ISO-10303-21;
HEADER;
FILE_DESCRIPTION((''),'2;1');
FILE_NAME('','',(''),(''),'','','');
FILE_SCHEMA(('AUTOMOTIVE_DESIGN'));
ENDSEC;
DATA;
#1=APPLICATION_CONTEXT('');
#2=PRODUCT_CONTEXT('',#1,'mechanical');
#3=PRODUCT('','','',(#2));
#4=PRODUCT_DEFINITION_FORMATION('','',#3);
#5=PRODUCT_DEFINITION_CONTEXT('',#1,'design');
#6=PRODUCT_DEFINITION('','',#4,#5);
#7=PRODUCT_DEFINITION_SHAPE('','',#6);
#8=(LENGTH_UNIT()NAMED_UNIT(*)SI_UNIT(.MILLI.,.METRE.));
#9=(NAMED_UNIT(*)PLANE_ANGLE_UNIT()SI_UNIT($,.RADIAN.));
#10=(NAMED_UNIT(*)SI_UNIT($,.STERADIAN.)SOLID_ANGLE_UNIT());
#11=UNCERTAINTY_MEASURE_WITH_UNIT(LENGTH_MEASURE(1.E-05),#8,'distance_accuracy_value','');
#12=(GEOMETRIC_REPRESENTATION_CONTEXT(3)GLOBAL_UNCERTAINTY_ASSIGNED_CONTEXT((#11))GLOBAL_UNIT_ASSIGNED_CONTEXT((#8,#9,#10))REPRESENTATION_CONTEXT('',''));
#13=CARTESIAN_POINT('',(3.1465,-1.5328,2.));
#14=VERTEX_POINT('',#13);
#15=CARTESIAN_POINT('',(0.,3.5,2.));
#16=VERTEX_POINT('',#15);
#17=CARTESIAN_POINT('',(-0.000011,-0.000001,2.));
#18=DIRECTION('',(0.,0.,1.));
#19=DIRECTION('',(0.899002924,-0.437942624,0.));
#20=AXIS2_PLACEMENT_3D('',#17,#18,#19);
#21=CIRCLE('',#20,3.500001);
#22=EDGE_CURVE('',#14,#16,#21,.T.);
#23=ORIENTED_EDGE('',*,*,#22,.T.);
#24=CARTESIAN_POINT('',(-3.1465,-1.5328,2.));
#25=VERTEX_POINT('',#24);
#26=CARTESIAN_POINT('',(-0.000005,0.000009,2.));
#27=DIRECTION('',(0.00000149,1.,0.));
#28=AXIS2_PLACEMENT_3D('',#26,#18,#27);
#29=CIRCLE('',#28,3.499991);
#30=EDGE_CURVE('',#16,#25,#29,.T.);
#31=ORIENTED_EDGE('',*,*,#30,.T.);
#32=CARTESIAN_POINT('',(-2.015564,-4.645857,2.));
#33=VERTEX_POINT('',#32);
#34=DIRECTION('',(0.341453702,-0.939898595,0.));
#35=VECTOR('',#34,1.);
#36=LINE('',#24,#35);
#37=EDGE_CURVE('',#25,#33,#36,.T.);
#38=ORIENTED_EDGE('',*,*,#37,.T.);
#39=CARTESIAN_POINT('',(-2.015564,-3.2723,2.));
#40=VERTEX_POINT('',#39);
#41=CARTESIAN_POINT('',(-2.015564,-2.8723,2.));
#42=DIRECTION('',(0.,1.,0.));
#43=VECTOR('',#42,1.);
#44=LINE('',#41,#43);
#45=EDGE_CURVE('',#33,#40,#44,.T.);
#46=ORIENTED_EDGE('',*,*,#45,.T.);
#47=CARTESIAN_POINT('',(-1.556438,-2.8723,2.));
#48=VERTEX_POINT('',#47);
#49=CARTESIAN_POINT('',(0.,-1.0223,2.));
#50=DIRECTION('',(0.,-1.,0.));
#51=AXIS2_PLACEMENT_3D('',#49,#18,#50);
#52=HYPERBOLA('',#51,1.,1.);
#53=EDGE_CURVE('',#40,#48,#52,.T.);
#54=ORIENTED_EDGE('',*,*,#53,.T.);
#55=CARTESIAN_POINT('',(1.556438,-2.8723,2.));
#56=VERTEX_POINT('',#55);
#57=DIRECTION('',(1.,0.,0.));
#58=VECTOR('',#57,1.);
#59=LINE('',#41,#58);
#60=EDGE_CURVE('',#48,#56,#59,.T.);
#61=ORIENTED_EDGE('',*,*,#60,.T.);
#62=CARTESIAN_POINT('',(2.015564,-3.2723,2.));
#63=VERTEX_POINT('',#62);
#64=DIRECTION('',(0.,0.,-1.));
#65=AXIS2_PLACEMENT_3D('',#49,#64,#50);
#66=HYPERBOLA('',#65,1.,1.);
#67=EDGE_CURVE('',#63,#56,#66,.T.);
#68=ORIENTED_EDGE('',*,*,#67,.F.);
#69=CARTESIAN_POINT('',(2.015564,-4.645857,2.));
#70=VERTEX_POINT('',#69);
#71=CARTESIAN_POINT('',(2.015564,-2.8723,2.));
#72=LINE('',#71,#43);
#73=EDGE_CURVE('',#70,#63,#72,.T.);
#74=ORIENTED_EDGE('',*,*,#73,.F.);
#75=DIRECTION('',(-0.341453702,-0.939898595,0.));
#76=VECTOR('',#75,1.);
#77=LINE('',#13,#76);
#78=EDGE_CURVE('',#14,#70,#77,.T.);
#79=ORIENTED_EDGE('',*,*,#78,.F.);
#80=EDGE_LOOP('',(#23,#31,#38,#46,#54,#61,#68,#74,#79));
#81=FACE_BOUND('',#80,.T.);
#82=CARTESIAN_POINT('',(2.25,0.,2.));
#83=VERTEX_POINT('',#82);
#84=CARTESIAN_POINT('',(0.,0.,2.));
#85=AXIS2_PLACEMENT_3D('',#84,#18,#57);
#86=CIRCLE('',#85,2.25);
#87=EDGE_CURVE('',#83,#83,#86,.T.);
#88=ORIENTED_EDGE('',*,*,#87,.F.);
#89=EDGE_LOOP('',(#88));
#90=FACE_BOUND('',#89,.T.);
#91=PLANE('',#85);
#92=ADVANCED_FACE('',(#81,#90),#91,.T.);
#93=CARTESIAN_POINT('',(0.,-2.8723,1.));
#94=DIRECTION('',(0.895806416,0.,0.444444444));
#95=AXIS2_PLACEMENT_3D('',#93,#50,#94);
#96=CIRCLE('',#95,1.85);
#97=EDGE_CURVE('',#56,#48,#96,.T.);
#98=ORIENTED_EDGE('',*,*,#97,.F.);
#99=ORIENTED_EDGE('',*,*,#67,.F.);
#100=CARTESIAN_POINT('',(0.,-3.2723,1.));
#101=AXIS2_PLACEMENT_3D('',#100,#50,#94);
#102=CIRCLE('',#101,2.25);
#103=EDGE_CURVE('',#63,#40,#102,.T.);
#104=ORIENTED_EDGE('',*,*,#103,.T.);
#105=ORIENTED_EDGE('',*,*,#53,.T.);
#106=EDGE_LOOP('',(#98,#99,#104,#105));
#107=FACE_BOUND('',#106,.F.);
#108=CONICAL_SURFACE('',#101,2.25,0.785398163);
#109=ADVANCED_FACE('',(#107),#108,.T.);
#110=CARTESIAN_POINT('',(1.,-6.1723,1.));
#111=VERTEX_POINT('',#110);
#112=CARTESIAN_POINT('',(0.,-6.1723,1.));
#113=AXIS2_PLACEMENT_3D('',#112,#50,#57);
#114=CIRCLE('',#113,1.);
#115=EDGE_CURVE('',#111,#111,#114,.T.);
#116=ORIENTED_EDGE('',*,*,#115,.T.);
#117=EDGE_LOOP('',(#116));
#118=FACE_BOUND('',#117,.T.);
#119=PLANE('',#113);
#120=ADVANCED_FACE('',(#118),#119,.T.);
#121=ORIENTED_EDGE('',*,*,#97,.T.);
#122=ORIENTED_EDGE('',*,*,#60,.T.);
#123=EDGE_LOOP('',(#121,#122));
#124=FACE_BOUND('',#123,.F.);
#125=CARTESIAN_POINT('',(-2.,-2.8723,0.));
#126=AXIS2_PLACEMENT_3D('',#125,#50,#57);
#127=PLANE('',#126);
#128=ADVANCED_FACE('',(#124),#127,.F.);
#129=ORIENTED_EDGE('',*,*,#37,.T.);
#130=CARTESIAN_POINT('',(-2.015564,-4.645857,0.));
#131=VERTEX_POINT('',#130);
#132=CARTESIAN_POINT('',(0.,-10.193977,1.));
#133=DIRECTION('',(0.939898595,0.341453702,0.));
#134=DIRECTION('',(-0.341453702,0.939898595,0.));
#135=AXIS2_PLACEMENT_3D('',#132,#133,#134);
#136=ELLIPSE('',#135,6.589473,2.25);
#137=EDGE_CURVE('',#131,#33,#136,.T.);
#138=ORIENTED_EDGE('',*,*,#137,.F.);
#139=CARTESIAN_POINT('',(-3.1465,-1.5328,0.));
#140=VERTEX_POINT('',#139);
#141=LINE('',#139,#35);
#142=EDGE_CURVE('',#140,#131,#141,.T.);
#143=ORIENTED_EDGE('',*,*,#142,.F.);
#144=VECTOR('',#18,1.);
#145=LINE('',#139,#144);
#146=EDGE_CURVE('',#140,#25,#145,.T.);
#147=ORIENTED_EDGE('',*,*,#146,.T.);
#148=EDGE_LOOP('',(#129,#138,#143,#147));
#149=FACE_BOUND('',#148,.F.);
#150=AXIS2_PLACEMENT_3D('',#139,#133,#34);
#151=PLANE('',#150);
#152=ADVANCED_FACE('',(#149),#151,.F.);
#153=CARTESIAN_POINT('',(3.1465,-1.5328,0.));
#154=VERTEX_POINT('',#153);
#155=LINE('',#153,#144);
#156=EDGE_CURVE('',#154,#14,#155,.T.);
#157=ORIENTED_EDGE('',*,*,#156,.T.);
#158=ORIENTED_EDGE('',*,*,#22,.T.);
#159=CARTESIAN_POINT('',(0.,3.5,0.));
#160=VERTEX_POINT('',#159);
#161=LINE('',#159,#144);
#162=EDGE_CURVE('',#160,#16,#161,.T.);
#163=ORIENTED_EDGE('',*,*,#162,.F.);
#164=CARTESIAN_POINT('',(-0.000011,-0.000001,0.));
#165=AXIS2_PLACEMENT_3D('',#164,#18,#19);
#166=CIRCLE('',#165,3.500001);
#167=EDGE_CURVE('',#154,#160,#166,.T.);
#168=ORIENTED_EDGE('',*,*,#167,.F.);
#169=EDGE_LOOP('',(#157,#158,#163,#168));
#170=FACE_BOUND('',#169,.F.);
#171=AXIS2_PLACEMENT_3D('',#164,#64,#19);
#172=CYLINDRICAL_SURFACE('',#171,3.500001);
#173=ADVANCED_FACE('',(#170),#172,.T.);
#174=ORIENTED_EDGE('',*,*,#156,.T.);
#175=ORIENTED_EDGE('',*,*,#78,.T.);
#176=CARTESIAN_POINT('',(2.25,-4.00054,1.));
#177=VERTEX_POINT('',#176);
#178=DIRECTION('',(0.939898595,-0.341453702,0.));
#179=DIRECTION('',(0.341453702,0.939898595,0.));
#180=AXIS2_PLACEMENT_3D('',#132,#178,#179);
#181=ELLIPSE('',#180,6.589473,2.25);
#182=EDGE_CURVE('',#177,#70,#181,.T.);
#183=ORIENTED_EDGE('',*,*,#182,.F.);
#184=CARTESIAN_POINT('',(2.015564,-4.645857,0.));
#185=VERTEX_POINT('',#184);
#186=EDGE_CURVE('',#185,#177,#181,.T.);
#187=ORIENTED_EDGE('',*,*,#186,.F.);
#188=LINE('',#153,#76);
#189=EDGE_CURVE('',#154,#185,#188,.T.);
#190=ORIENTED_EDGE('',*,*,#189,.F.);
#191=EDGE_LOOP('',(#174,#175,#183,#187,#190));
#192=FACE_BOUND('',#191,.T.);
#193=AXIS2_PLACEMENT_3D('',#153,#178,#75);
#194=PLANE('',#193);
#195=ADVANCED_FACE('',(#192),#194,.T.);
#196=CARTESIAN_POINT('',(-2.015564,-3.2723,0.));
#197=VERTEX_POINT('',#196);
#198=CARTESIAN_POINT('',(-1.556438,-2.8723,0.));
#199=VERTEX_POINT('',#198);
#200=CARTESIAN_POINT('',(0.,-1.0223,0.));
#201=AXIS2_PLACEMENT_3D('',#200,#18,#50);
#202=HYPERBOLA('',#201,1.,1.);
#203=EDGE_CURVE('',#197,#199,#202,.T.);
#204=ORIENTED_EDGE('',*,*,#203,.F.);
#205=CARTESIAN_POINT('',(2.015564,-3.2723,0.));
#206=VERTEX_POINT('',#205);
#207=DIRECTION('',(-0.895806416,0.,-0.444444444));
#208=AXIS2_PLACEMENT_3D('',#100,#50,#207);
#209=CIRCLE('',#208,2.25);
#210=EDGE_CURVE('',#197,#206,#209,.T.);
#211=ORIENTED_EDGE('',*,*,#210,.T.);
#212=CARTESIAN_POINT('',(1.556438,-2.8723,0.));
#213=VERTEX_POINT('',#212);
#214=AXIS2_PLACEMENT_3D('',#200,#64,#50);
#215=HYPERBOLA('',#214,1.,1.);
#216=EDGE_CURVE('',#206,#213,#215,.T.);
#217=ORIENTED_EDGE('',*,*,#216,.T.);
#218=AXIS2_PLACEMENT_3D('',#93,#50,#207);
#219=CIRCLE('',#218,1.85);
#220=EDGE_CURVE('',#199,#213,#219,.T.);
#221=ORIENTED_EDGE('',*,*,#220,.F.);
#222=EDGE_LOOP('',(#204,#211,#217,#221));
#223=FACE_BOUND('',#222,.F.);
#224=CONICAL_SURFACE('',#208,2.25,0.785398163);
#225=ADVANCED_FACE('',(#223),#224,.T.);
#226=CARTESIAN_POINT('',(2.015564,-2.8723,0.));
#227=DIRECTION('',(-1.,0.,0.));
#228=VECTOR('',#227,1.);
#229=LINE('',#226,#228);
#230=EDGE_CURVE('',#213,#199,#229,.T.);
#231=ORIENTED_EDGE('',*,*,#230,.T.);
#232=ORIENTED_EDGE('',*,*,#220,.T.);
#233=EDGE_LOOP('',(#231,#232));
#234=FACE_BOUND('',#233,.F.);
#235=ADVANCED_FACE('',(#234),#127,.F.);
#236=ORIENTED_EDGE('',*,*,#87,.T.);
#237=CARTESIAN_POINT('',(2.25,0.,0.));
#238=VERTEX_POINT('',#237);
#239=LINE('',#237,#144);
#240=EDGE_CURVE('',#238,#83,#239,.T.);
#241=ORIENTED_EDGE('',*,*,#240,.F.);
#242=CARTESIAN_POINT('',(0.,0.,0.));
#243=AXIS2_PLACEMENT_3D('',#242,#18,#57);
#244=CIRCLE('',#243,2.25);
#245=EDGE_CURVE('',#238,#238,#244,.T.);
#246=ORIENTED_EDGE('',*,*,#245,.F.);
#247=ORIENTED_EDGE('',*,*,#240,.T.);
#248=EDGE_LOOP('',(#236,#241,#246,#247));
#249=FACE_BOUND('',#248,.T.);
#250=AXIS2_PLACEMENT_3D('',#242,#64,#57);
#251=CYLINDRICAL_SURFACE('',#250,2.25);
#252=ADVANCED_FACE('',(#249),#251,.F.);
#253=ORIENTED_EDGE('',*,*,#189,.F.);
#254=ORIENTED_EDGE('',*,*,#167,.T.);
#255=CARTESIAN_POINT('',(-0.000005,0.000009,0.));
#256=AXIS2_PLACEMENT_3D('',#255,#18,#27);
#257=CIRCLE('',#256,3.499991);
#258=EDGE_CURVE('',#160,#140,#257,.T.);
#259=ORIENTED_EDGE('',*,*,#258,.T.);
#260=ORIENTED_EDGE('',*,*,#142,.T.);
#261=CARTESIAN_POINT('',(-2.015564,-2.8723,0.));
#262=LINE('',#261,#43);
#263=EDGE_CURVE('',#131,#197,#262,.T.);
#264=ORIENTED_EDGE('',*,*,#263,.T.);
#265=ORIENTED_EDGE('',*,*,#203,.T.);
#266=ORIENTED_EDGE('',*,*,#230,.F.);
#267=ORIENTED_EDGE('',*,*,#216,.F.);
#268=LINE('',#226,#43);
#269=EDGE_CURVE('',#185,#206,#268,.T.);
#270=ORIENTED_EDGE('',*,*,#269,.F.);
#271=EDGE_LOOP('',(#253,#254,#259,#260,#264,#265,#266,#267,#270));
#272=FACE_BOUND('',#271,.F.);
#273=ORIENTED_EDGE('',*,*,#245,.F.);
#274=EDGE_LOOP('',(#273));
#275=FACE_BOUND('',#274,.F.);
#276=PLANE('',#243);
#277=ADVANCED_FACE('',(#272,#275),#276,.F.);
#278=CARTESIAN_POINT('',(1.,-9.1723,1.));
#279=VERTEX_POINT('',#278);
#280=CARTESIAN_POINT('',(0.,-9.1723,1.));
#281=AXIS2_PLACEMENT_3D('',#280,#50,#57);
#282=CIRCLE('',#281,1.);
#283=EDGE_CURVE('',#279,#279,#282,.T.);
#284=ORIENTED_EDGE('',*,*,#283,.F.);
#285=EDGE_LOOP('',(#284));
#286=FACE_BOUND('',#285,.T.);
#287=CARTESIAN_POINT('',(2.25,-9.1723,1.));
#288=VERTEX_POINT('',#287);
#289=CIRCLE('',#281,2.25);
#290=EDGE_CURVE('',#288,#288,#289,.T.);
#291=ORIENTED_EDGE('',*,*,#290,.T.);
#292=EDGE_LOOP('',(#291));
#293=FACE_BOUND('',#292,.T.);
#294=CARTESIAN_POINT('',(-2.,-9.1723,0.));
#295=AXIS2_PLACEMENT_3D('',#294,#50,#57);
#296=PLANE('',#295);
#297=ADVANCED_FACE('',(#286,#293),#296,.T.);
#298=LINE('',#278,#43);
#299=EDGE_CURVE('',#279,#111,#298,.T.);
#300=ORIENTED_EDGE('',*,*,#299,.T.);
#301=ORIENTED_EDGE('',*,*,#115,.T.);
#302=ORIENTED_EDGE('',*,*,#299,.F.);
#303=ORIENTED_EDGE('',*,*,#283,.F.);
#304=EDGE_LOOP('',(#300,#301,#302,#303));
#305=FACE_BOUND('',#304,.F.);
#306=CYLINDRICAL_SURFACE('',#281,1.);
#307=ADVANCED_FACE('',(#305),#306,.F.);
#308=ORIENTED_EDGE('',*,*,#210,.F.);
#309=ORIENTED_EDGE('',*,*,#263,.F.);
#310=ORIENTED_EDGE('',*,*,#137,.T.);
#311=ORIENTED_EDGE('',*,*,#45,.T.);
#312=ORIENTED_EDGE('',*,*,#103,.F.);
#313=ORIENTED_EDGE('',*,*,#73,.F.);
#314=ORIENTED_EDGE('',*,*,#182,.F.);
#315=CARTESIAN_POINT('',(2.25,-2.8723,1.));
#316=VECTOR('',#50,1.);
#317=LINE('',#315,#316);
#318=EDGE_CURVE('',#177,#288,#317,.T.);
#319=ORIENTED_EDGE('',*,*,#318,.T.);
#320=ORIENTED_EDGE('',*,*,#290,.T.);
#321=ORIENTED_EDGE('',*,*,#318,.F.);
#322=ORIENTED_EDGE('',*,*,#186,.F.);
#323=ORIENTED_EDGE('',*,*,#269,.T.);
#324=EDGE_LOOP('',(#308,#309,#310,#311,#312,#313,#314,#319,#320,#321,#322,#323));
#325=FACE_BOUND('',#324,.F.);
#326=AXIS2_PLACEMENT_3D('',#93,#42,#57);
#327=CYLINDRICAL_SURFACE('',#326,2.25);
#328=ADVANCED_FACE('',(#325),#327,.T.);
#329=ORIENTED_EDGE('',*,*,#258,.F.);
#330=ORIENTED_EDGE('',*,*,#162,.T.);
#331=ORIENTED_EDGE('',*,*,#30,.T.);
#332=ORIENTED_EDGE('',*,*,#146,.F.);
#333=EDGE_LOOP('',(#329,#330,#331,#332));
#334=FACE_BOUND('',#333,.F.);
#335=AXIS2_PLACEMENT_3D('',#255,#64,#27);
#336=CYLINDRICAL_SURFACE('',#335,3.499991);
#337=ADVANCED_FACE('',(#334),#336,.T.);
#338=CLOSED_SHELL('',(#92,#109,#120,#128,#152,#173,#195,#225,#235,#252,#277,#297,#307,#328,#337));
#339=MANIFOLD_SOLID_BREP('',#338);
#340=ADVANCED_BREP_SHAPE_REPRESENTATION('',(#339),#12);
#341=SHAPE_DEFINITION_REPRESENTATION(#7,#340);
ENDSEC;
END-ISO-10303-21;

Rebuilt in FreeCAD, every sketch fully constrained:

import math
import FreeCAD as App
import Part
import Sketcher

V = App.Vector
Q = App.Units.Quantity


def edges_at(feature, points):
    """Names of the edges that pass closest to the given points."""
    edges = feature.Shape.Edges
    near = lambda p: min(range(len(edges)), key=lambda i: edges[i].distToShape(Part.Vertex(*p))[0])
    return sorted({f"Edge{near(p) + 1}" for p in points})

doc = App.newDocument("Part")
body = doc.addObject("PartDesign::Body", "Body")

# Sketch on XY plane
sketch1 = body.newObject("Sketcher::SketchObject", "Sketch")
sketch1.AttachmentSupport = (doc.getObject("XY_Plane"), [""])
sketch1.MapMode = "FlatFace"
sketch1.addGeometry(Part.LineSegment(V(2, -4.7, 0), V(3.1, -1.5, 0)), False)
sketch1.addGeometry(Part.ArcOfCircle(Part.Circle(V(0, 0, 0), V(0, 0, 1), 3.5), math.radians(-26), math.radians(90)), False)
sketch1.addGeometry(Part.ArcOfCircle(Part.Circle(V(0, 0, 0), V(0, 0, 1), 3.5), math.radians(90), math.radians(206)), False)
sketch1.addGeometry(Part.LineSegment(V(-3.1, -1.5, 0), V(-2, -4.7, 0)), False)
sketch1.addGeometry(Part.LineSegment(V(-2, -4.7, 0), V(-2, -2.9, 0)), False)
sketch1.addGeometry(Part.LineSegment(V(-2, -2.9, 0), V(2, -2.9, 0)), False)
sketch1.addGeometry(Part.LineSegment(V(2, -2.9, 0), V(2, -4.7, 0)), False)
sketch1.addGeometry(Part.Circle(V(0, 0, 0), V(0, 0, 1), 2.2), False)
sketch1.addConstraint(Sketcher.Constraint("Coincident", 0, 2, 1, 1))
sketch1.addConstraint(Sketcher.Constraint("Tangent", 1, 2, 2, 1))
sketch1.addConstraint(Sketcher.Constraint("Coincident", 2, 2, 3, 1))
sketch1.addConstraint(Sketcher.Constraint("Coincident", 3, 2, 4, 1))
sketch1.addConstraint(Sketcher.Constraint("Coincident", 4, 2, 5, 1))
sketch1.addConstraint(Sketcher.Constraint("Coincident", 5, 2, 6, 1))
sketch1.addConstraint(Sketcher.Constraint("Coincident", 6, 2, 0, 1))
sketch1.addConstraint(Sketcher.Constraint("Vertical", 4))
sketch1.addConstraint(Sketcher.Constraint("Horizontal", 5))
sketch1.addConstraint(Sketcher.Constraint("Vertical", 6))
sketch1.addConstraint(Sketcher.Constraint("Coincident", 1, 3, -1, 1))
sketch1.addConstraint(Sketcher.Constraint("Coincident", 7, 3, -1, 1))
sketch1.addConstraint(Sketcher.Constraint("Equal", 1, 2))
sketch1.addConstraint(Sketcher.Constraint("Symmetric", 3, 2, 6, 2, -2))
sketch1.addConstraint(Sketcher.Constraint("PointOnObject", 1, 2, -2))
sketch1.addConstraint(Sketcher.Constraint("Horizontal", 0, 2, 2, 2))
sketch1.addConstraint(Sketcher.Constraint("Diameter", 7, Q("4.5 mm")))
sketch1.addConstraint(Sketcher.Constraint("Radius", 1, Q("3.5 mm")))
sketch1.addConstraint(Sketcher.Constraint("DistanceX", 3, 2, -1, 1, Q("2 mm")))
sketch1.addConstraint(Sketcher.Constraint("DistanceY", 4, 1, 4, 2, Q("1.8164 mm")))
sketch1.addConstraint(Sketcher.Constraint("DistanceX", 2, 2, 0, 2, Q("6.293 mm")))
sketch1.addConstraint(Sketcher.Constraint("DistanceY", 3, 2, 2, 2, Q("3.156 mm")))
pad1 = body.newObject("PartDesign::Pad", "Pad")
pad1.Profile = sketch1
pad1.Length = 2

# Sketch on XZ plane
sketch2 = body.newObject("Sketcher::SketchObject", "Sketch001")
sketch2.AttachmentSupport = (doc.getObject("XZ_Plane"), [""])
sketch2.MapMode = "FlatFace"
sketch2.AttachmentOffset = App.Placement(V(0, 0, 2.8723), App.Rotation())
sketch2.addGeometry(Part.Circle(V(0, 1, 0), V(0, 0, 1), 2.2), False)
sketch2.addConstraint(Sketcher.Constraint("PointOnObject", 0, 3, -2))
sketch2.addConstraint(Sketcher.Constraint("Diameter", 0, Q("4.5 mm")))
sketch2.addConstraint(Sketcher.Constraint("DistanceY", -1, 1, 0, 3, Q("1 mm")))
pad2 = body.newObject("PartDesign::Pad", "Pad001")
pad2.Profile = sketch2
pad2.Length = 6.3

# Sketch on XZ plane
sketch3 = body.newObject("Sketcher::SketchObject", "Sketch002")
sketch3.AttachmentSupport = (doc.getObject("XZ_Plane"), [""])
sketch3.MapMode = "FlatFace"
sketch3.AttachmentOffset = App.Placement(V(0, 0, 9.1723), App.Rotation())
sketch3.addGeometry(Part.Circle(V(0, 1, 0), V(0, 0, 1), 1), False)
sketch3.addConstraint(Sketcher.Constraint("PointOnObject", 0, 3, -2))
sketch3.addConstraint(Sketcher.Constraint("Diameter", 0, Q("2 mm")))
sketch3.addConstraint(Sketcher.Constraint("DistanceY", -1, 1, 0, 3, Q("1 mm")))
pocket1 = body.newObject("PartDesign::Pocket", "Pocket")
pocket1.Profile = sketch3
pocket1.Length = 3
doc.recompute()

chamfer = body.newObject("PartDesign::Chamfer", "Chamfer")
chamfer.Base = (pocket1, edges_at(pocket1, [(0, -2.872, -1.25)]))
chamfer.Size = 0.4
doc.recompute()

chamfer2 = body.newObject("PartDesign::Chamfer", "Chamfer001")
chamfer2.Base = (chamfer, edges_at(chamfer, [(0, -2.872, 3.25)]))
chamfer2.Size = 0.4

doc.recompute()
